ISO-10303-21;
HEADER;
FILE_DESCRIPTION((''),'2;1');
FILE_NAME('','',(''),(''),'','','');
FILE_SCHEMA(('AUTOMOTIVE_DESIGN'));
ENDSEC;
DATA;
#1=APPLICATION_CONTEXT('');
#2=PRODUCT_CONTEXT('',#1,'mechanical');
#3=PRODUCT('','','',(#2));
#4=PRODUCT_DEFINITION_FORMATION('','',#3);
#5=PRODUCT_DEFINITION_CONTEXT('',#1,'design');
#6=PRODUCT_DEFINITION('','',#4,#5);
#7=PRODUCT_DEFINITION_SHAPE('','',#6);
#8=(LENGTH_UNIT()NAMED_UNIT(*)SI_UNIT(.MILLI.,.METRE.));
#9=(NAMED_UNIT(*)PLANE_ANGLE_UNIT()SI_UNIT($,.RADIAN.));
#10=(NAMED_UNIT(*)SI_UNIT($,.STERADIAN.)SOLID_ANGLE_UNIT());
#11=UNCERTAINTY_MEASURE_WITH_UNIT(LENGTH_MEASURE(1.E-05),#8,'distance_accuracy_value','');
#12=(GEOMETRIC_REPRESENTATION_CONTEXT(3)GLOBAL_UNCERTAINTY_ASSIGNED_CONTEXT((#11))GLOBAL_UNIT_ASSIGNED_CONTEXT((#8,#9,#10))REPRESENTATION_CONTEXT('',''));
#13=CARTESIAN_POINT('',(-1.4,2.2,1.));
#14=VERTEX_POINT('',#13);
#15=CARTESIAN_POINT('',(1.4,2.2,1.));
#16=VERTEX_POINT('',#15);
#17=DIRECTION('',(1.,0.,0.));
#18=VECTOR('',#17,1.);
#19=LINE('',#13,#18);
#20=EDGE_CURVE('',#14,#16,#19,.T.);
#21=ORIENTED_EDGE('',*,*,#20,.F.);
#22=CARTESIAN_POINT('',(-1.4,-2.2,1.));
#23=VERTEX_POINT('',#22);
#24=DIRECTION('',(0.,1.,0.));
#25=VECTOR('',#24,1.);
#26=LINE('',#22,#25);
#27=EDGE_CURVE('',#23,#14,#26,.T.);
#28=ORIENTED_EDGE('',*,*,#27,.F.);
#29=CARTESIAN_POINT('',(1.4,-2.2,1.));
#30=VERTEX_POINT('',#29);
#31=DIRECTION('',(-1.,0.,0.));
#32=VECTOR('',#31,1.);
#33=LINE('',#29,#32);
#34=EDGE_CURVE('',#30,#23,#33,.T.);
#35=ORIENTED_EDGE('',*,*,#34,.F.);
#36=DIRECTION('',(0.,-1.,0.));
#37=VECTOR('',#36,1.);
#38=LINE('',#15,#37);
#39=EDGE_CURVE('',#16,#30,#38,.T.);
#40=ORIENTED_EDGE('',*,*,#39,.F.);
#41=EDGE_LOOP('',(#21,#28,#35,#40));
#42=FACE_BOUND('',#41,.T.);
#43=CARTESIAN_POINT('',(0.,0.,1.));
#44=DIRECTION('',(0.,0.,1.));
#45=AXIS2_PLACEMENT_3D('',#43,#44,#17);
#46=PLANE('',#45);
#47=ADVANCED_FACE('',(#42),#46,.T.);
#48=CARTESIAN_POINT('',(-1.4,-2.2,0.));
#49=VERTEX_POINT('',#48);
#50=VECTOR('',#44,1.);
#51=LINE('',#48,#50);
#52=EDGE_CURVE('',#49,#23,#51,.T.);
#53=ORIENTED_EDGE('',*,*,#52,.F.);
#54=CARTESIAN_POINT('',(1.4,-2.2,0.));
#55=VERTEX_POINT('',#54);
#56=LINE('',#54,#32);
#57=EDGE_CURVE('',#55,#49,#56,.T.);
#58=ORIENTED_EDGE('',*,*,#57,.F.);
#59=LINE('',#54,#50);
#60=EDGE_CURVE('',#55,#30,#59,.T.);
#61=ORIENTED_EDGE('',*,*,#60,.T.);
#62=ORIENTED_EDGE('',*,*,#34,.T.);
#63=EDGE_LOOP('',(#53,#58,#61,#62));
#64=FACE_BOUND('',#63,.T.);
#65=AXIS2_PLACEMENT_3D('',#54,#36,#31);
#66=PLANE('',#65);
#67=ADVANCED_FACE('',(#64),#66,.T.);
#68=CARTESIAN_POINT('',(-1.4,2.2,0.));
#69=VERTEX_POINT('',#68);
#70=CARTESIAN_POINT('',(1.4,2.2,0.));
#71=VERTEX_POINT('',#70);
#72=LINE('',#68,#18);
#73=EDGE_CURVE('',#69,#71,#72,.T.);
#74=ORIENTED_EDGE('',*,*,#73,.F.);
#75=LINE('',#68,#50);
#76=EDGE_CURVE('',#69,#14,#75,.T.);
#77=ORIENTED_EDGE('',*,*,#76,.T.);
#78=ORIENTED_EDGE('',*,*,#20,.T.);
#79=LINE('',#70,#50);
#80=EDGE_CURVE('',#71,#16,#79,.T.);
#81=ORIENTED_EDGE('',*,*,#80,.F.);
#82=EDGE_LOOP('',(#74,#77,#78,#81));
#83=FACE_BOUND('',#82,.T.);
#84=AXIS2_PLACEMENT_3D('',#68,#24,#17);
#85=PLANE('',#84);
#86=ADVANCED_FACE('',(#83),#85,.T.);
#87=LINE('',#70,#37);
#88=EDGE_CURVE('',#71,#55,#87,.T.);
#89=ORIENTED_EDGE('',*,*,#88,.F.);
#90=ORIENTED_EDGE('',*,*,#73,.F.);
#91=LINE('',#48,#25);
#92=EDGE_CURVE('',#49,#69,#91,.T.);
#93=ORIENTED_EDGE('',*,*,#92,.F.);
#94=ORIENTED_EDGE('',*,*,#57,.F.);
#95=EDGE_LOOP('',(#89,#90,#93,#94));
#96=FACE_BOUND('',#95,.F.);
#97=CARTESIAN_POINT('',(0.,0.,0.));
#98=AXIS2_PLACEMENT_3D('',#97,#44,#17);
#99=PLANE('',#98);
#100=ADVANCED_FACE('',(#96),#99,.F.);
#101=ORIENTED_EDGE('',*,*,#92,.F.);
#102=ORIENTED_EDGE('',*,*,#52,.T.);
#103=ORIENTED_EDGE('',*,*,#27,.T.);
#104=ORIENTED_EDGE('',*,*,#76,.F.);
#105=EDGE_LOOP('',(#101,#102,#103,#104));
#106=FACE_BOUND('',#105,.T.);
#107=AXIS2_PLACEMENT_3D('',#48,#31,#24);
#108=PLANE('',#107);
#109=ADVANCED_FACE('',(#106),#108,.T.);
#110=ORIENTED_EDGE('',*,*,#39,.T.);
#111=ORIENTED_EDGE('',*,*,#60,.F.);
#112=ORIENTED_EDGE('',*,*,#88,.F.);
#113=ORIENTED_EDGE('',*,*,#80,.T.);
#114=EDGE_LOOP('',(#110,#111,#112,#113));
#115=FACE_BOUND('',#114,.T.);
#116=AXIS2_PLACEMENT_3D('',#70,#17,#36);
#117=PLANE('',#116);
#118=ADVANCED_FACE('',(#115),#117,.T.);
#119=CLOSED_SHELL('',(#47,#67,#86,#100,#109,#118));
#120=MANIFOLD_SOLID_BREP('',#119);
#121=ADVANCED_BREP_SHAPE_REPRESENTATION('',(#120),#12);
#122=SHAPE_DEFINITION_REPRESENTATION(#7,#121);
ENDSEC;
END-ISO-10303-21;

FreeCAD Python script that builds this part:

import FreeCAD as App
import Part
import Sketcher
Q = App.Units.Quantity

doc = App.newDocument("Part")
body = doc.addObject("PartDesign::Body", "Body")

sketch1 = body.newObject("Sketcher::SketchObject", "Sketch")
sketch1.AttachmentSupport = (doc.getObject("XY_Plane"), [""])
sketch1.MapMode = "FlatFace"
sketch1.addGeometry([
    Part.LineSegment(App.Vector(1.4, 2.2, 0), App.Vector(-1.4, 2.2, 0)),
    Part.LineSegment(App.Vector(-1.4, 2.2, 0), App.Vector(-1.4, -2.2, 0)),
    Part.LineSegment(App.Vector(-1.4, -2.2, 0), App.Vector(1.4, -2.2, 0)),
    Part.LineSegment(App.Vector(1.4, -2.2, 0), App.Vector(1.4, 2.2, 0)),
], False)
sketch1.addConstraint([
    Sketcher.Constraint("Coincident", 0, 2, 1, 1),
    Sketcher.Constraint("Coincident", 1, 2, 2, 1),
    Sketcher.Constraint("Coincident", 2, 2, 3, 1),
    Sketcher.Constraint("Coincident", 3, 2, 0, 1),
    Sketcher.Constraint("Horizontal", 0),
    Sketcher.Constraint("Vertical", 1),
    Sketcher.Constraint("Horizontal", 2),
    Sketcher.Constraint("Vertical", 3),
    Sketcher.Constraint("Symmetric", 0, 2, 2, 2, -1, 1),
    Sketcher.Constraint("DistanceX", 0, 2, 0, 1, Q("2.8 mm")),
    Sketcher.Constraint("DistanceY", 1, 2, 1, 1, Q("4.4 mm")),
])
pad1 = body.newObject("PartDesign::Pad", "Pad")
pad1.Profile = sketch1
pad1.Length = 1

doc.recompute()
